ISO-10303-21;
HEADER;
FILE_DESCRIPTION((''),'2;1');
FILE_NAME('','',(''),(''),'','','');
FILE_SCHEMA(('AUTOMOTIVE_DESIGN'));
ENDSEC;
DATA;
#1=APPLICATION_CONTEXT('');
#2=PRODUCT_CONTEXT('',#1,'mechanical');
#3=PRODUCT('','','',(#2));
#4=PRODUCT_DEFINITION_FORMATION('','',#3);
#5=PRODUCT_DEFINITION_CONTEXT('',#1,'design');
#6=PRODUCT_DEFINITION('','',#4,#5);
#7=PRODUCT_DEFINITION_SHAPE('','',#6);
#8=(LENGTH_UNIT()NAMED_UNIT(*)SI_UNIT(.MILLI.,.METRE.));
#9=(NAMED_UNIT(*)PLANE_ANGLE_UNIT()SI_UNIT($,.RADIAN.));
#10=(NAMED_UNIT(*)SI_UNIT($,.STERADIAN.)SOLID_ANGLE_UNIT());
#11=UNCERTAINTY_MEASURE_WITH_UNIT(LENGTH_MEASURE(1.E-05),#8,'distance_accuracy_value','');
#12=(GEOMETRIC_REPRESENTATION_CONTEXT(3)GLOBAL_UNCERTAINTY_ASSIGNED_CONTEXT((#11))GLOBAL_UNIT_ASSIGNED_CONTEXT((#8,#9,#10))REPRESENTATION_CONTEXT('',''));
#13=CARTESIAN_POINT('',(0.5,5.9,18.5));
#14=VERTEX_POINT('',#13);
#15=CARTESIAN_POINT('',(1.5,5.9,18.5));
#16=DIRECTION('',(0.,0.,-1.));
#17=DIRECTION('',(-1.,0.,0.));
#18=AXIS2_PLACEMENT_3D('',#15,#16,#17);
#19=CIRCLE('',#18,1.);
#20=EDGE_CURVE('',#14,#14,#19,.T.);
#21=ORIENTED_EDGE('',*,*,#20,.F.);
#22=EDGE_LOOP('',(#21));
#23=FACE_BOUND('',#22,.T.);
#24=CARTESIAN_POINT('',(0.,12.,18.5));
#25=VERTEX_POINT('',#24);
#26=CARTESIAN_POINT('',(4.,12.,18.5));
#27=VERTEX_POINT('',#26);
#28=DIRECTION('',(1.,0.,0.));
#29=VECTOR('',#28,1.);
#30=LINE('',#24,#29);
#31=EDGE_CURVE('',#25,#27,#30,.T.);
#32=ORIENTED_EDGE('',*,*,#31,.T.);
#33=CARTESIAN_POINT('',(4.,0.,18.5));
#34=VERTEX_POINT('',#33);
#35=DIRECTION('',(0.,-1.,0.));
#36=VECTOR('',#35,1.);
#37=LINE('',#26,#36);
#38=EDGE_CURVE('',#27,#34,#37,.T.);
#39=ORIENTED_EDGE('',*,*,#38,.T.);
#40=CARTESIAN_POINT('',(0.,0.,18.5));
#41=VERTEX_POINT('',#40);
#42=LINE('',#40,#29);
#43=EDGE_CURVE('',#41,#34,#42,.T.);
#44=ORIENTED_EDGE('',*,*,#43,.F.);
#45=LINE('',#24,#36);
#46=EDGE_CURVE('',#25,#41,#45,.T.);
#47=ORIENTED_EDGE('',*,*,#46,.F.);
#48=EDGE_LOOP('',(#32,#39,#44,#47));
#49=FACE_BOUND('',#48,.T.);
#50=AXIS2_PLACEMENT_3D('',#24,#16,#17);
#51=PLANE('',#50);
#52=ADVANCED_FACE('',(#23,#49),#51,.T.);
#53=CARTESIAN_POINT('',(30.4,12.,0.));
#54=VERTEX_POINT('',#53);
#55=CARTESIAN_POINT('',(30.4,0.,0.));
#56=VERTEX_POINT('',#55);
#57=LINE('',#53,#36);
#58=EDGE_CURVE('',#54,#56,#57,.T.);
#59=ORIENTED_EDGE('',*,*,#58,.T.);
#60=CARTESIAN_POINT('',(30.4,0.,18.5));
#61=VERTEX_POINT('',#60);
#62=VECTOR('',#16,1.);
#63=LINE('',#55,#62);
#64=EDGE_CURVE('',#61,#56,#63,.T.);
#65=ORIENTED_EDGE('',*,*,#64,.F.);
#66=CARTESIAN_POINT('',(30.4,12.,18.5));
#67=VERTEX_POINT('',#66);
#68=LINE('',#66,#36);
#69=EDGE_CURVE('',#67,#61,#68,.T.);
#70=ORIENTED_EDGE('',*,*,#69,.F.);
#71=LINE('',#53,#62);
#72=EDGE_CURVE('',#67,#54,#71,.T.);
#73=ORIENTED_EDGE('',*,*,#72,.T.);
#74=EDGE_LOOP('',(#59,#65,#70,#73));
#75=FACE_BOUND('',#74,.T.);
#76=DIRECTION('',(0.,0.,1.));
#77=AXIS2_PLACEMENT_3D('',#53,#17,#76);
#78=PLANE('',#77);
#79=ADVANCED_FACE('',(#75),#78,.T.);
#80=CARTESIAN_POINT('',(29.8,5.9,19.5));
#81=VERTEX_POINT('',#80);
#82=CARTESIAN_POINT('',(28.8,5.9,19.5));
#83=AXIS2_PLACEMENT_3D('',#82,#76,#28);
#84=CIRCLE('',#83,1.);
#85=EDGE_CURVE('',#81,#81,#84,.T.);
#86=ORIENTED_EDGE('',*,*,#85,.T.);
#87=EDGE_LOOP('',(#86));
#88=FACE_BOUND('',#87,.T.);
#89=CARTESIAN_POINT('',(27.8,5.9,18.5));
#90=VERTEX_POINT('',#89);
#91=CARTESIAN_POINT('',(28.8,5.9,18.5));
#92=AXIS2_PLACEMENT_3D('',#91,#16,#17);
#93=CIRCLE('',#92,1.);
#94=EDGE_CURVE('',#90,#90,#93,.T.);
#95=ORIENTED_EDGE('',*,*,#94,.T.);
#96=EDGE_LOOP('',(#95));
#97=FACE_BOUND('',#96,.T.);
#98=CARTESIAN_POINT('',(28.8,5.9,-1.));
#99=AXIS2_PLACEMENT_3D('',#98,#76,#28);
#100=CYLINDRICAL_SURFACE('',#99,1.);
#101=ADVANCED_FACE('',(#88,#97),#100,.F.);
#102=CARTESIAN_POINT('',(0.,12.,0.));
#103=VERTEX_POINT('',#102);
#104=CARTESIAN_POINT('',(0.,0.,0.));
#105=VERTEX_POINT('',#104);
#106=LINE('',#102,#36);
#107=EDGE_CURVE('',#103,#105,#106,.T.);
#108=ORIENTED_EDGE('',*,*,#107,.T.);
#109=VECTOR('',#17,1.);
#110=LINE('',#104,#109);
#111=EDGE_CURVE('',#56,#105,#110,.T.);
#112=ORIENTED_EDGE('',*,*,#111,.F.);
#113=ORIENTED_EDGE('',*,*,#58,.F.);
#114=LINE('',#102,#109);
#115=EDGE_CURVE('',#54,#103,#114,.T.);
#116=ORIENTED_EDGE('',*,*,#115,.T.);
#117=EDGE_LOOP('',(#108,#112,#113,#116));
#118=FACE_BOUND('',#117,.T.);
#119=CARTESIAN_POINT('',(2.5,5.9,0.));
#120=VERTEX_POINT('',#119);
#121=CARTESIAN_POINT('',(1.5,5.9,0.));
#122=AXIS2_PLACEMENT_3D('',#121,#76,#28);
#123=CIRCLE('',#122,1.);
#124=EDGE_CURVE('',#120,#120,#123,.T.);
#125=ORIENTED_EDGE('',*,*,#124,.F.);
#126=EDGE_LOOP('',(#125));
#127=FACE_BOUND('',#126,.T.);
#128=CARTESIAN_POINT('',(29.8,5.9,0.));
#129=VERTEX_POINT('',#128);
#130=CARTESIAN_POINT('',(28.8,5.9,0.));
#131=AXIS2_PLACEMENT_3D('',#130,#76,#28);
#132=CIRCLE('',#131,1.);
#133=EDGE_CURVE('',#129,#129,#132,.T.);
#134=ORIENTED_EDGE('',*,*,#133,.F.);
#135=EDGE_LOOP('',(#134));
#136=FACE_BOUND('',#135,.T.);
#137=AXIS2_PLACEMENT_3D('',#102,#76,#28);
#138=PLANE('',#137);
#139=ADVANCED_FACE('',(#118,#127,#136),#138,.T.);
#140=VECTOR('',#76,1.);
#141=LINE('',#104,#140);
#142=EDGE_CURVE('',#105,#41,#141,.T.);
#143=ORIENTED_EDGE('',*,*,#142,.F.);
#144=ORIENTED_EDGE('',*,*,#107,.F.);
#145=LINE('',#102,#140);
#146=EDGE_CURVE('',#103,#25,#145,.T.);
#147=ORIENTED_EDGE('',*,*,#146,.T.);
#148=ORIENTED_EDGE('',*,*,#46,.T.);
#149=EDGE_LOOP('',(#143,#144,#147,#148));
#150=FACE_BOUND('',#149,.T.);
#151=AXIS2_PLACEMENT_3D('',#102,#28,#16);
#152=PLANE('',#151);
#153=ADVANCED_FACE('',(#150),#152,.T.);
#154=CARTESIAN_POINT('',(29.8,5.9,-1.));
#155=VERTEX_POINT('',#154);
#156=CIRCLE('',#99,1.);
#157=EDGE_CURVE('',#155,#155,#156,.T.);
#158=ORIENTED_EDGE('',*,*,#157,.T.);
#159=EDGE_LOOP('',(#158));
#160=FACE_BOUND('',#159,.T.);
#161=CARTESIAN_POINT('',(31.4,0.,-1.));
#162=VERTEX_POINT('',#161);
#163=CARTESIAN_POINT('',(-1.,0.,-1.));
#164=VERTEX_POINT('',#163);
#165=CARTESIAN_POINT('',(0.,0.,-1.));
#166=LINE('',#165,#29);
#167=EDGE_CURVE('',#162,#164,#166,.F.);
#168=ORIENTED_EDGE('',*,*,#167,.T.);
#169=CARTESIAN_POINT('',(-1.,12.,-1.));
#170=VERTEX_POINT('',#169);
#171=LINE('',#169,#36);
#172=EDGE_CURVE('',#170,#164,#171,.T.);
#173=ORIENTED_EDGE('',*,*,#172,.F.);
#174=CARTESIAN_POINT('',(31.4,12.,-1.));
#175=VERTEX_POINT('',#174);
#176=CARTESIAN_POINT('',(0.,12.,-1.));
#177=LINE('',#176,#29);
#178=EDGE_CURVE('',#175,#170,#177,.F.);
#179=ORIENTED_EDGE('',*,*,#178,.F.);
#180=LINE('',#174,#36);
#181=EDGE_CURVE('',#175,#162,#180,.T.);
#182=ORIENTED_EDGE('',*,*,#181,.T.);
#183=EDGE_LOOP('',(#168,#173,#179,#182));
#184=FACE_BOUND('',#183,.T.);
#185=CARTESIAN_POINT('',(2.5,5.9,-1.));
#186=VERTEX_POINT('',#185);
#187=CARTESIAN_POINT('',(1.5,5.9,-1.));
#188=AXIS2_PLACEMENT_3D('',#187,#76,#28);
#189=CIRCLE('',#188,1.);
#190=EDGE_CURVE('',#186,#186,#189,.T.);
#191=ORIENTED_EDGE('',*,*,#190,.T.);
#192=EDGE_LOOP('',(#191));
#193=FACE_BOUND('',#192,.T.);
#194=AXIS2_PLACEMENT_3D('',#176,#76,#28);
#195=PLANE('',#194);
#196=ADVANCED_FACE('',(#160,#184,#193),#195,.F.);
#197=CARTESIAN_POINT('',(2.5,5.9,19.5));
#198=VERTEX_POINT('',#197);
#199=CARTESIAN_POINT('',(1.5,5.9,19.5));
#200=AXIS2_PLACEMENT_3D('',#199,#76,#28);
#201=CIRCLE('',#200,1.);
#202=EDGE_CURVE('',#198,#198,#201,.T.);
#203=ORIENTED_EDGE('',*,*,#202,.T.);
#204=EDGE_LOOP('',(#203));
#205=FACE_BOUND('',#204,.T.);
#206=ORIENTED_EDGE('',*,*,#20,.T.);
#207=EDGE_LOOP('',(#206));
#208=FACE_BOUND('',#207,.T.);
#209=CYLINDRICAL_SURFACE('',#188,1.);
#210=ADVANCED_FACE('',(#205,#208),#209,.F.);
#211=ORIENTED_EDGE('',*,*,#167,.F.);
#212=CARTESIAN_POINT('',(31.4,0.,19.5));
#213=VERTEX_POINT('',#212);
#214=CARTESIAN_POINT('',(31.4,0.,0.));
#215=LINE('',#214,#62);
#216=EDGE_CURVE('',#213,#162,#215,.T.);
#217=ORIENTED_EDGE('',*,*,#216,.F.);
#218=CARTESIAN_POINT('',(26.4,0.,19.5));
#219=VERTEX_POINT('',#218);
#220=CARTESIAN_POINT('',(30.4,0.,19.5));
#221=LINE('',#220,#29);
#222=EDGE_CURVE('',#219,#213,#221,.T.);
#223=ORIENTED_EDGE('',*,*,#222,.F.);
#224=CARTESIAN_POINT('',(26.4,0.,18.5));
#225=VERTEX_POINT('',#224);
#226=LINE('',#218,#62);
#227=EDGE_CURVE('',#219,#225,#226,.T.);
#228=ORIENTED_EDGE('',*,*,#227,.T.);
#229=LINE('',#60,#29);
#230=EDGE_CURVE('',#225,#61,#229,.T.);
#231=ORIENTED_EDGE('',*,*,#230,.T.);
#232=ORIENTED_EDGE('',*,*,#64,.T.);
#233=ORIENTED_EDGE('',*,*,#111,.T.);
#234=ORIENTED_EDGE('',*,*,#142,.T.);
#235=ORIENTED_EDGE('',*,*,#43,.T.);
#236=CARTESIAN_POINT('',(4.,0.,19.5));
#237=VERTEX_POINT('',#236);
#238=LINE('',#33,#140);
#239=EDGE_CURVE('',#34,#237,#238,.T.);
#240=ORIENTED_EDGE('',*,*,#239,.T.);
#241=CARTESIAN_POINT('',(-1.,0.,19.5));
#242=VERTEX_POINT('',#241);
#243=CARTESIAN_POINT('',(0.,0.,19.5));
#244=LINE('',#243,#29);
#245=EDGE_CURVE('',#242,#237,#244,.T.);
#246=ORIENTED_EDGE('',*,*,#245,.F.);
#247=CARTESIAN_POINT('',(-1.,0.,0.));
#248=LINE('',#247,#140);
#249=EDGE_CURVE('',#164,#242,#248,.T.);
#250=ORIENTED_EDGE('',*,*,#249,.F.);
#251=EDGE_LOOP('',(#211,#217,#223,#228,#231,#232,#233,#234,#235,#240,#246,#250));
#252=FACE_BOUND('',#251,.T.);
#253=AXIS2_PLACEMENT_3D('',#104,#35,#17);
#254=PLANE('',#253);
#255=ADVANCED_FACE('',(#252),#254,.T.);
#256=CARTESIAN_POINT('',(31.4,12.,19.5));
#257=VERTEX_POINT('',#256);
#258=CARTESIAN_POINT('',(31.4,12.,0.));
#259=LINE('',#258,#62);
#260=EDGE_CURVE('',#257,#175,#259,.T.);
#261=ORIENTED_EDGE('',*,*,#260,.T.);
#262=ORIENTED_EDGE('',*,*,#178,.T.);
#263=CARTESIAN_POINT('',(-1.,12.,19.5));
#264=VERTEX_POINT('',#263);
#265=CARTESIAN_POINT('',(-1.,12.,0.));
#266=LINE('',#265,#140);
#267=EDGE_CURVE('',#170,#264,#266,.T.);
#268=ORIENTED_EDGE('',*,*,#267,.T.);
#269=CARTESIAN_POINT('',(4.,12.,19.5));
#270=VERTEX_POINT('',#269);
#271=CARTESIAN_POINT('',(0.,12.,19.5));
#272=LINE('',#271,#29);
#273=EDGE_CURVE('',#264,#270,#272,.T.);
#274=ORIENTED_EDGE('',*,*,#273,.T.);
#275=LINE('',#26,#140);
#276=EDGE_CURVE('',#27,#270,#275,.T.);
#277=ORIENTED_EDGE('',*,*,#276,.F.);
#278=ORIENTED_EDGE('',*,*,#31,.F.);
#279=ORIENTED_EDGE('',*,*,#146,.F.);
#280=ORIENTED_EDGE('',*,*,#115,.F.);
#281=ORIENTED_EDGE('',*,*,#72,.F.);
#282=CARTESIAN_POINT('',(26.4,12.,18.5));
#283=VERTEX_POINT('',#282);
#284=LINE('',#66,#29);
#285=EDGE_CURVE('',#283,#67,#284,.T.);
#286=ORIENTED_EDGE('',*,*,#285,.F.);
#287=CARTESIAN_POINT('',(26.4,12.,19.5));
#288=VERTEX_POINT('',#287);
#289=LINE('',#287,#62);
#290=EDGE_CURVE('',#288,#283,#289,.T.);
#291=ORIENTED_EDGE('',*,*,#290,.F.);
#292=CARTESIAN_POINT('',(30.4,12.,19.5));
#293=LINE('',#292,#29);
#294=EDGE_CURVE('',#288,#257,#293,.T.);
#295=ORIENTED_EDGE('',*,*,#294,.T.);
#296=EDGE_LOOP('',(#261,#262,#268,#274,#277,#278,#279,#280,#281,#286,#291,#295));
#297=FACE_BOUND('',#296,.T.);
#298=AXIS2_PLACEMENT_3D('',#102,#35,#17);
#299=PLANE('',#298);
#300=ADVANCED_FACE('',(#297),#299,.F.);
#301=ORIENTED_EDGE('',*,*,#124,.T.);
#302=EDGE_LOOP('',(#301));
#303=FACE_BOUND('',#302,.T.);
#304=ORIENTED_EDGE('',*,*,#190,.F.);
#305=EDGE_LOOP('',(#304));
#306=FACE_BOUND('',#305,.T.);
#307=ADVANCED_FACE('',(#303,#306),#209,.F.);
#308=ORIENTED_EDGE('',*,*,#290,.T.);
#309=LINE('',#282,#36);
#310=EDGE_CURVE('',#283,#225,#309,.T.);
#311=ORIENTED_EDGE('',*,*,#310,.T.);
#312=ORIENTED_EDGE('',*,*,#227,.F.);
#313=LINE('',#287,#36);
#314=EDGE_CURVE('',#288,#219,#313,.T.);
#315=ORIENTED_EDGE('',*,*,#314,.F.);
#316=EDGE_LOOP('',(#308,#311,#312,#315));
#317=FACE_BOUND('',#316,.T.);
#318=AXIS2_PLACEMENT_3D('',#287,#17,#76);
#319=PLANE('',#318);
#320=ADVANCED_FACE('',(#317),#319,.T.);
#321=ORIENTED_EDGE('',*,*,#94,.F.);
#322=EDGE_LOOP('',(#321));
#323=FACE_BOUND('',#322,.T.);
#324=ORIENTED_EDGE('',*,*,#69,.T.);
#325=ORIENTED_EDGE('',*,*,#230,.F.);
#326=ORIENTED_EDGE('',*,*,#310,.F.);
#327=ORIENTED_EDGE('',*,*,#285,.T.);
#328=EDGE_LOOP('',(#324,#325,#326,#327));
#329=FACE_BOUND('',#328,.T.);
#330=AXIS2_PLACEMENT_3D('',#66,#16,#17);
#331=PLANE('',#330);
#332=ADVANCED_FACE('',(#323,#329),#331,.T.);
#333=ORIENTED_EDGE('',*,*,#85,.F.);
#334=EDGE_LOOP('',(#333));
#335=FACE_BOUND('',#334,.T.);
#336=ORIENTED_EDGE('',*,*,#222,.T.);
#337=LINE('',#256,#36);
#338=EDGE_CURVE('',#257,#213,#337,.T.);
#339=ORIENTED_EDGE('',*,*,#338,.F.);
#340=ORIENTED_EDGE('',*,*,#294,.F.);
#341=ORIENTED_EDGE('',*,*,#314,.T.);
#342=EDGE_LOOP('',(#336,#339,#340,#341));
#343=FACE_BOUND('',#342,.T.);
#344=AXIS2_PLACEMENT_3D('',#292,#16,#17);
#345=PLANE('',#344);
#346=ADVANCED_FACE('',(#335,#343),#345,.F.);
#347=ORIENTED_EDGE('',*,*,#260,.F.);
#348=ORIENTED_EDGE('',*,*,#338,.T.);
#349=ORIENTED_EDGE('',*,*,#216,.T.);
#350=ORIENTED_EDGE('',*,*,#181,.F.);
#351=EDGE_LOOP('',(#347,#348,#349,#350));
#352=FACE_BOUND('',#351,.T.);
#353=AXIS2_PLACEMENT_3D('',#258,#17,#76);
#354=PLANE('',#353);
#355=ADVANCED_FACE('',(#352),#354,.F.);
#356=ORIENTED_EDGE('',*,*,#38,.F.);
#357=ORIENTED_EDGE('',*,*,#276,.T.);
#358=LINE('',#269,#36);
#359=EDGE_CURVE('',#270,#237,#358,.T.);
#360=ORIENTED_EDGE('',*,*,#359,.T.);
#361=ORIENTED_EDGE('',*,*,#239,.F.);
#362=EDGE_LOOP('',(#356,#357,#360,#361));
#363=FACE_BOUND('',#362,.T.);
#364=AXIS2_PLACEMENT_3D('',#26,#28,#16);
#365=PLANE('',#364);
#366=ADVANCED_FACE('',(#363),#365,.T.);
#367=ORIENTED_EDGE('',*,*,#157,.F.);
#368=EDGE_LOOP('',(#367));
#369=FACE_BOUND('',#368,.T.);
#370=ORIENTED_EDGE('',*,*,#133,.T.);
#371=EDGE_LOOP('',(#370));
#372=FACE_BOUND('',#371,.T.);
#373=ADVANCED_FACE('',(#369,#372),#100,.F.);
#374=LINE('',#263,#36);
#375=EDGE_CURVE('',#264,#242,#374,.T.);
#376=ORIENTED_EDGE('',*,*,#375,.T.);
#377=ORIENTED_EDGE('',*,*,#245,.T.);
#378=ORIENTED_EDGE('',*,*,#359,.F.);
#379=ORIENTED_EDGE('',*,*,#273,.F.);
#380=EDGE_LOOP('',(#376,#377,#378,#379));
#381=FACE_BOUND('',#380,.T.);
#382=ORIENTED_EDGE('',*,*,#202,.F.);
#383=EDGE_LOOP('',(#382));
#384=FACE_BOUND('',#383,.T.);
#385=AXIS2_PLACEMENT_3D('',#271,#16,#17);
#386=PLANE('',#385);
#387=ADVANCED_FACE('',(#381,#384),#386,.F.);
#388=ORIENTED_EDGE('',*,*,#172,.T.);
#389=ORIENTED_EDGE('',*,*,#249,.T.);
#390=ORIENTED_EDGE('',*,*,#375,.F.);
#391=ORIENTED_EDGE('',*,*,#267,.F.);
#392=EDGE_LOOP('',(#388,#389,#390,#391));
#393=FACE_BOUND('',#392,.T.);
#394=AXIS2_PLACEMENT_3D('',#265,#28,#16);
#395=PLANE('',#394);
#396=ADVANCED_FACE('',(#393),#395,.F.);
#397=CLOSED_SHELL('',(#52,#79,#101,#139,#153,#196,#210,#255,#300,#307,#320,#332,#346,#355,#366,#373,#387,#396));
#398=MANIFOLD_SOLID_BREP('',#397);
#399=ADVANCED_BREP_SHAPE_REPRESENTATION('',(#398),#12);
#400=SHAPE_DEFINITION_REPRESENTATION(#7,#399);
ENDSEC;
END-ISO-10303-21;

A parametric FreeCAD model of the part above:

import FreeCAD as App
import Part
import Sketcher

V = App.Vector

doc = App.newDocument("Part")
body = doc.addObject("PartDesign::Body", "Body")

sketch1 = body.newObject("Sketcher::SketchObject", "Sketch")
sketch1.AttachmentSupport = (doc.getObject("XZ_Plane"), [""])
sketch1.MapMode = "FlatFace"
sketch1.addGeometry([
    Part.LineSegment(V(4, 18.5, 0), V(0, 18.5, 0)),
    Part.LineSegment(V(0, 18.5, 0), V(0, 0, 0)),
    Part.LineSegment(V(0, 0, 0), V(30.4, 0, 0)),
    Part.LineSegment(V(30.4, 0, 0), V(30.4, 18.5, 0)),
    Part.LineSegment(V(30.4, 18.5, 0), V(26.4, 18.5, 0)),
    Part.LineSegment(V(26.4, 18.5, 0), V(26.4, 19.5, 0)),
    Part.LineSegment(V(26.4, 19.5, 0), V(31.4, 19.5, 0)),
    Part.LineSegment(V(31.4, 19.5, 0), V(31.4, -1, 0)),
    Part.LineSegment(V(31.4, -1, 0), V(-1, -1, 0)),
    Part.LineSegment(V(-1, -1, 0), V(-1, 19.5, 0)),
    Part.LineSegment(V(-1, 19.5, 0), V(4, 19.5, 0)),
    Part.LineSegment(V(4, 19.5, 0), V(4, 18.5, 0)),
], False)
sketch1.addConstraint([
    Sketcher.Constraint("Coincident", 0, 2, 1, 1),
    Sketcher.Constraint("Coincident", 1, 2, 2, 1),
    Sketcher.Constraint("Coincident", 2, 2, 3, 1),
    Sketcher.Constraint("Coincident", 3, 2, 4, 1),
    Sketcher.Constraint("Coincident", 4, 2, 5, 1),
    Sketcher.Constraint("Coincident", 5, 2, 6, 1),
    Sketcher.Constraint("Coincident", 6, 2, 7, 1),
    Sketcher.Constraint("Coincident", 7, 2, 8, 1),
    Sketcher.Constraint("Coincident", 8, 2, 9, 1),
    Sketcher.Constraint("Coincident", 9, 2, 10, 1),
    Sketcher.Constraint("Coincident", 10, 2, 11, 1),
    Sketcher.Constraint("Coincident", 11, 2, 0, 1),
    Sketcher.Constraint("Horizontal", 0),
    Sketcher.Constraint("Vertical", 1),
    Sketcher.Constraint("Horizontal", 2),
    Sketcher.Constraint("Vertical", 3),
    Sketcher.Constraint("Horizontal", 4),
    Sketcher.Constraint("Vertical", 5),
    Sketcher.Constraint("Horizontal", 6),
    Sketcher.Constraint("Vertical", 7),
    Sketcher.Constraint("Horizontal", 8),
    Sketcher.Constraint("Vertical", 9),
    Sketcher.Constraint("Horizontal", 10),
    Sketcher.Constraint("Vertical", 11),
    Sketcher.Constraint("Coincident", 1, 2, -1, 1),
    Sketcher.Constraint("Horizontal", 0, 2, 3, 2),
    Sketcher.Constraint("Horizontal", 6, 2, 9, 2),
    Sketcher.Constraint("Equal", 0, 4),
    Sketcher.Constraint("Equal", 6, 10),
    Sketcher.Constraint("DistanceX", 0, 2, 0, 1, 4.0),
    Sketcher.Constraint("DistanceX", 6, 1, 6, 2, 5.0),
    Sketcher.Constraint("DistanceY", 5, 1, 5, 2, 1.0),
    Sketcher.Constraint("DistanceX", 2, 1, 2, 2, 30.4),
    Sketcher.Constraint("DistanceY", 1, 2, 1, 1, 18.5),
    Sketcher.Constraint("DistanceY", 7, 2, 7, 1, 20.5),
])
pad1 = body.newObject("PartDesign::Pad", "Pad")
pad1.Profile = sketch1
pad1.Length = 12
pad1.Reversed = True

sketch2 = body.newObject("Sketcher::SketchObject", "Sketch001")
sketch2.AttachmentSupport = (doc.getObject("XY_Plane"), [""])
sketch2.MapMode = "FlatFace"
sketch2.AttachmentOffset = App.Placement(V(0, 0, 19.5), App.Rotation())
sketch2.addGeometry([
    Part.Circle(V(28.8, 5.9, 0), V(0, 0, 1), 1),
    Part.Circle(V(1.5, 5.9, 0), V(0, 0, 1), 1),
], False)
sketch2.addConstraint([
    Sketcher.Constraint("Equal", 0, 1),
    Sketcher.Constraint("Horizontal", 0, 3, 1, 3),
    Sketcher.Constraint("Diameter", 0, 2.0),
    Sketcher.Constraint("DistanceX", -1, 1, 0, 3, 28.8),
    Sketcher.Constraint("DistanceY", -1, 1, 0, 3, 5.9),
    Sketcher.Constraint("DistanceX", -1, 1, 1, 3, 1.5),
])
pocket1 = body.newObject("PartDesign::Pocket", "Pocket")
pocket1.Profile = sketch2
pocket1.Type = "ThroughAll"

doc.recompute()
